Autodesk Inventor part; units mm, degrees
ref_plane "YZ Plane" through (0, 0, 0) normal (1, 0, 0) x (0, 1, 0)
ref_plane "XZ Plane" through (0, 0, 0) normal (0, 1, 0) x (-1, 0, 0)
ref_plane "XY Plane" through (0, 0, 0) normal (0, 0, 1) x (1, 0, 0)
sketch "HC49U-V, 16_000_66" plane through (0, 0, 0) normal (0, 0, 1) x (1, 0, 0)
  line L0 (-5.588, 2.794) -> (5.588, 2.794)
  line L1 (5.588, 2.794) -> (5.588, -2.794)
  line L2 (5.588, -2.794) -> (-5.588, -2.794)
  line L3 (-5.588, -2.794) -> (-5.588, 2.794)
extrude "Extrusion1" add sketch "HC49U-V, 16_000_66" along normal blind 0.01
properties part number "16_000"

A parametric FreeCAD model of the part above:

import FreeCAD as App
import Part
import Sketcher

V = App.Vector
Q = App.Units.Quantity


def add_polygon(sketch, points):
    """Adds a closed chain of lines whose ends are joined by coincident constraints."""
    first, n = sketch.GeometryCount, len(points)
    for a, b in zip(points, points[1:] + points[:1]):
        sketch.addGeometry(Part.LineSegment(App.Vector(*a, 0), App.Vector(*b, 0)), False)
    for i in range(n):
        sketch.addConstraint(Sketcher.Constraint("Coincident", first + i, 2, first + (i + 1) % n, 1))

doc = App.newDocument("Part")
body = doc.addObject("PartDesign::Body", "Body")

sketch1 = body.newObject("Sketcher::SketchObject", "Sketch")
sketch1.AttachmentSupport = (doc.getObject("XY_Plane"), [""])
sketch1.MapMode = "FlatFace"
add_polygon(sketch1, [(5.588, 2.794), (-5.588, 2.794), (-5.588, -2.794), (5.588, -2.794)])
sketch1.addConstraint([
    Sketcher.Constraint("Horizontal", 0),
    Sketcher.Constraint("Vertical", 1),
    Sketcher.Constraint("Horizontal", 2),
    Sketcher.Constraint("Vertical", 3),
    Sketcher.Constraint("Symmetric", 0, 2, 2, 2, -1, 1),
    Sketcher.Constraint("DistanceX", 0, 2, 0, 1, Q("0.44 in")),
    Sketcher.Constraint("DistanceY", 1, 2, 1, 1, Q("0.22 in")),
])
pad1 = body.newObject("PartDesign::Pad", "Pad")
pad1.Profile = sketch1
pad1.Length = Q("0.0003937 in")

doc.recompute()
